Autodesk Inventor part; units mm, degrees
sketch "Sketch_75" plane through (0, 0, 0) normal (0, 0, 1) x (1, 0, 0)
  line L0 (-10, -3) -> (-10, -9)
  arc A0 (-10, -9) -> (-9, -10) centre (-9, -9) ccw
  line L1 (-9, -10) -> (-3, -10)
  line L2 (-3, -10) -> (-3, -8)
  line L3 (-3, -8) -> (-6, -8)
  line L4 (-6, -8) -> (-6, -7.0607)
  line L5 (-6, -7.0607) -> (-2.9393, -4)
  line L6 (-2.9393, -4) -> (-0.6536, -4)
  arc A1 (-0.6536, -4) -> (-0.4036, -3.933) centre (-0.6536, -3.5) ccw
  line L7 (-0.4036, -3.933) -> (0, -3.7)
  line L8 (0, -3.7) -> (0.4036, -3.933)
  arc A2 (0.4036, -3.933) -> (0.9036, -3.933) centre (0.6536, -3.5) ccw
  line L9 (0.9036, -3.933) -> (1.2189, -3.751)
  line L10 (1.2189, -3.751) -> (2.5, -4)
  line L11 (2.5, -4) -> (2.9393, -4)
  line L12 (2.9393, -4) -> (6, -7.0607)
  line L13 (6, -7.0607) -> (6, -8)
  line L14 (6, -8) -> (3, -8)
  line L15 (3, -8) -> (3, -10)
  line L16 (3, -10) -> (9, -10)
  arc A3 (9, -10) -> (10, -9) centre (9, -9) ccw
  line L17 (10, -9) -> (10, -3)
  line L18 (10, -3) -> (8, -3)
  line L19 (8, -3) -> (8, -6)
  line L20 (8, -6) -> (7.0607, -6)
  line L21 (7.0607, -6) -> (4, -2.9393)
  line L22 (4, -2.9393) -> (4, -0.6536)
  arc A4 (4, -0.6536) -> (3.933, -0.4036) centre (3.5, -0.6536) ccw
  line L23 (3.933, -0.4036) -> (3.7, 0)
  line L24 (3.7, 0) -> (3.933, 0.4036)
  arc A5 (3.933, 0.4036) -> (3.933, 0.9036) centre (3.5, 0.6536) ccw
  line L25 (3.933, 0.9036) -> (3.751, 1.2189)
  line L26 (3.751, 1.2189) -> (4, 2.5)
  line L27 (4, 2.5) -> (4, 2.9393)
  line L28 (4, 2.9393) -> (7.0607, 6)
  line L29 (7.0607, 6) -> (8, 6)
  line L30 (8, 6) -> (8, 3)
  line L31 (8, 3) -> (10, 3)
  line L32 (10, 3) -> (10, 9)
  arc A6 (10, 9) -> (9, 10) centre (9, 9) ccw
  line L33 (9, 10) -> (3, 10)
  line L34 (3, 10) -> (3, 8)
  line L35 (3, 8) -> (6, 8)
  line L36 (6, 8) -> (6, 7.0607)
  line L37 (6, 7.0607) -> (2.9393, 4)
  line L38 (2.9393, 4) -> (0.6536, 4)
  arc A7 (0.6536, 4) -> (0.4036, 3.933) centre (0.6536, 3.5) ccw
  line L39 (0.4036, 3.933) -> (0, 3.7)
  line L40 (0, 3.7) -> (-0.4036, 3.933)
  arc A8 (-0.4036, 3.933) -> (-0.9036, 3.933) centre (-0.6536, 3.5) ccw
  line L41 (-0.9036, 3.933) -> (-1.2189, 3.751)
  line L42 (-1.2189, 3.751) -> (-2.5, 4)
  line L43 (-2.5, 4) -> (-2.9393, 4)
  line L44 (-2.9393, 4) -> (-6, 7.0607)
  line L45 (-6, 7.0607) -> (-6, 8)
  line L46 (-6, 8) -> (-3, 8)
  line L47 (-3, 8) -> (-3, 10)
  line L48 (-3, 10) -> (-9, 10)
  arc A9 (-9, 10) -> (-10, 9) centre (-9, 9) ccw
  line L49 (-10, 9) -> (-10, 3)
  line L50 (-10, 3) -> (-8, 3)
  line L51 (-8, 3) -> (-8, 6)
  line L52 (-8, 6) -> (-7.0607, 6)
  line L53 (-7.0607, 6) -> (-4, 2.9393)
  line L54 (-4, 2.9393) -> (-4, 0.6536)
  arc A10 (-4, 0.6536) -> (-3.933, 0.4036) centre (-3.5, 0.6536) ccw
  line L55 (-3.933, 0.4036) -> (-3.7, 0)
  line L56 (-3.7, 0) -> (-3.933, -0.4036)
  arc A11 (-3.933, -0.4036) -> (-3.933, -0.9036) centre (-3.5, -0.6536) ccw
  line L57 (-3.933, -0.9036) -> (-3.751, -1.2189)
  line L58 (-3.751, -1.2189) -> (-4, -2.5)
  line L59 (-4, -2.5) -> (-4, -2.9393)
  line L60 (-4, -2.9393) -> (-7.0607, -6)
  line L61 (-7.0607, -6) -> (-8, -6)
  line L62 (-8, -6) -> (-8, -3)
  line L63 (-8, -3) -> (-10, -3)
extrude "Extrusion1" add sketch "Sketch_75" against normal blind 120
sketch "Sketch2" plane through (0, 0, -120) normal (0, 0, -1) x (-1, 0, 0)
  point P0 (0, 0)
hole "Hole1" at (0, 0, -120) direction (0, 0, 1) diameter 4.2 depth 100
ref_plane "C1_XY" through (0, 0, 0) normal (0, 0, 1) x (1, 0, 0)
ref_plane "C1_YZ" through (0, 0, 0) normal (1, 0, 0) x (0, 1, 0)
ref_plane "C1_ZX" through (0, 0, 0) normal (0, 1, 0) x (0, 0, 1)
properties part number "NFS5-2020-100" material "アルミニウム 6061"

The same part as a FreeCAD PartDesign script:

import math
import FreeCAD as App
import Part
import Sketcher
Q = App.Units.Quantity

doc = App.newDocument("Part")
body = doc.addObject("PartDesign::Body", "Body")

# Sketch on XY plane
sketch1 = body.newObject("Sketcher::SketchObject", "Sketch")
sketch1.AttachmentSupport = (doc.getObject("XY_Plane"), [""])
sketch1.MapMode = "FlatFace"
sketch1.addGeometry([
    Part.LineSegment(App.Vector(-8, -3, 0), App.Vector(-10, -3, 0)),  # 0
    Part.LineSegment(App.Vector(-10, -3, 0), App.Vector(-10, -9, 0)),  # 1
    Part.ArcOfCircle(Part.Circle(App.Vector(-9, -9, 0), App.Vector(0, 0, 1), 1), math.radians(180), math.radians(270)),  # 2
    Part.LineSegment(App.Vector(-9, -10, 0), App.Vector(-3, -10, 0)),  # 3
    Part.LineSegment(App.Vector(-3, -10, 0), App.Vector(-3, -8, 0)),  # 4
    Part.LineSegment(App.Vector(-3, -8, 0), App.Vector(-6, -8, 0)),  # 5
    Part.LineSegment(App.Vector(-6, -8, 0), App.Vector(-6, -7.06, 0)),  # 6
    Part.LineSegment(App.Vector(-6, -7.06, 0), App.Vector(-2.94, -4, 0)),  # 7
    Part.LineSegment(App.Vector(-2.94, -4, 0), App.Vector(-0.65, -4, 0)),  # 8
    Part.ArcOfCircle(Part.Circle(App.Vector(-0.65, -3.5, 0), App.Vector(0, 0, 1), 0.5), math.radians(-90), math.radians(-60)),  # 9
    Part.LineSegment(App.Vector(-0.4, -3.93, 0), App.Vector(0, -3.7, 0)),  # 10
    Part.LineSegment(App.Vector(0, -3.7, 0), App.Vector(0.4, -3.93, 0)),  # 11
    Part.ArcOfCircle(Part.Circle(App.Vector(0.65, -3.5, 0), App.Vector(0, 0, 1), 0.5), math.radians(-120), math.radians(-60)),  # 12
    Part.LineSegment(App.Vector(0.9, -3.93, 0), App.Vector(1.22, -3.75, 0)),  # 13
    Part.LineSegment(App.Vector(1.22, -3.75, 0), App.Vector(2.5, -4, 0)),  # 14
    Part.LineSegment(App.Vector(2.5, -4, 0), App.Vector(2.94, -4, 0)),  # 15
    Part.LineSegment(App.Vector(2.94, -4, 0), App.Vector(6, -7.06, 0)),  # 16
    Part.LineSegment(App.Vector(6, -7.06, 0), App.Vector(6, -8, 0)),  # 17
    Part.LineSegment(App.Vector(6, -8, 0), App.Vector(3, -8, 0)),  # 18
    Part.LineSegment(App.Vector(3, -8, 0), App.Vector(3, -10, 0)),  # 19
    Part.LineSegment(App.Vector(3, -10, 0), App.Vector(9, -10, 0)),  # 20
    Part.ArcOfCircle(Part.Circle(App.Vector(9, -9, 0), App.Vector(0, 0, 1), 1), math.radians(-90), math.radians(0)),  # 21
    Part.LineSegment(App.Vector(10, -9, 0), App.Vector(10, -3, 0)),  # 22
    Part.LineSegment(App.Vector(10, -3, 0), App.Vector(8, -3, 0)),  # 23
    Part.LineSegment(App.Vector(8, -3, 0), App.Vector(8, -6, 0)),  # 24
    Part.LineSegment(App.Vector(8, -6, 0), App.Vector(7.06, -6, 0)),  # 25
    Part.LineSegment(App.Vector(7.06, -6, 0), App.Vector(4, -2.94, 0)),  # 26
    Part.LineSegment(App.Vector(4, -2.94, 0), App.Vector(4, -0.65, 0)),  # 27
    Part.ArcOfCircle(Part.Circle(App.Vector(3.5, -0.65, 0), App.Vector(0, 0, 1), 0.5), math.radians(0), math.radians(30)),  # 28
    Part.LineSegment(App.Vector(3.93, -0.4, 0), App.Vector(3.7, 0, 0)),  # 29
    Part.LineSegment(App.Vector(3.7, 0, 0), App.Vector(3.93, 0.4, 0)),  # 30
    Part.ArcOfCircle(Part.Circle(App.Vector(3.5, 0.65, 0), App.Vector(0, 0, 1), 0.5), math.radians(-30), math.radians(30)),  # 31
    Part.LineSegment(App.Vector(3.93, 0.9, 0), App.Vector(3.75, 1.22, 0)),  # 32
    Part.LineSegment(App.Vector(3.75, 1.22, 0), App.Vector(4, 2.5, 0)),  # 33
    Part.LineSegment(App.Vector(4, 2.5, 0), App.Vector(4, 2.94, 0)),  # 34
    Part.LineSegment(App.Vector(4, 2.94, 0), App.Vector(7.06, 6, 0)),  # 35
    Part.LineSegment(App.Vector(7.06, 6, 0), App.Vector(8, 6, 0)),  # 36
    Part.LineSegment(App.Vector(8, 6, 0), App.Vector(8, 3, 0)),  # 37
    Part.LineSegment(App.Vector(8, 3, 0), App.Vector(10, 3, 0)),  # 38
    Part.LineSegment(App.Vector(10, 3, 0), App.Vector(10, 9, 0)),  # 39
    Part.ArcOfCircle(Part.Circle(App.Vector(9, 9, 0), App.Vector(0, 0, 1), 1), math.radians(0), math.radians(90)),  # 40
    Part.LineSegment(App.Vector(9, 10, 0), App.Vector(3, 10, 0)),  # 41
    Part.LineSegment(App.Vector(3, 10, 0), App.Vector(3, 8, 0)),  # 42
    Part.LineSegment(App.Vector(3, 8, 0), App.Vector(6, 8, 0)),  # 43
    Part.LineSegment(App.Vector(6, 8, 0), App.Vector(6, 7.06, 0)),  # 44
    Part.LineSegment(App.Vector(6, 7.06, 0), App.Vector(2.94, 4, 0)),  # 45
    Part.LineSegment(App.Vector(2.94, 4, 0), App.Vector(0.65, 4, 0)),  # 46
    Part.ArcOfCircle(Part.Circle(App.Vector(0.65, 3.5, 0), App.Vector(0, 0, 1), 0.5), math.radians(90), math.radians(120)),  # 47
    Part.LineSegment(App.Vector(0.4, 3.93, 0), App.Vector(0, 3.7, 0)),  # 48
    Part.LineSegment(App.Vector(0, 3.7, 0), App.Vector(-0.4, 3.93, 0)),  # 49
    Part.ArcOfCircle(Part.Circle(App.Vector(-0.65, 3.5, 0), App.Vector(0, 0, 1), 0.5), math.radians(60), math.radians(120)),  # 50
    Part.LineSegment(App.Vector(-0.9, 3.93, 0), App.Vector(-1.22, 3.75, 0)),  # 51
    Part.LineSegment(App.Vector(-1.22, 3.75, 0), App.Vector(-2.5, 4, 0)),  # 52
    Part.LineSegment(App.Vector(-2.5, 4, 0), App.Vector(-2.94, 4, 0)),  # 53
    Part.LineSegment(App.Vector(-2.94, 4, 0), App.Vector(-6, 7.06, 0)),  # 54
    Part.LineSegment(App.Vector(-6, 7.06, 0), App.Vector(-6, 8, 0)),  # 55
    Part.LineSegment(App.Vector(-6, 8, 0), App.Vector(-3, 8, 0)),  # 56
    Part.LineSegment(App.Vector(-3, 8, 0), App.Vector(-3, 10, 0)),  # 57
    Part.LineSegment(App.Vector(-3, 10, 0), App.Vector(-9, 10, 0)),  # 58
    Part.ArcOfCircle(Part.Circle(App.Vector(-9, 9, 0), App.Vector(0, 0, 1), 1), math.radians(90), math.radians(180)),  # 59
    Part.LineSegment(App.Vector(-10, 9, 0), App.Vector(-10, 3, 0)),  # 60
    Part.LineSegment(App.Vector(-10, 3, 0), App.Vector(-8, 3, 0)),  # 61
    Part.LineSegment(App.Vector(-8, 3, 0), App.Vector(-8, 6, 0)),  # 62
    Part.LineSegment(App.Vector(-8, 6, 0), App.Vector(-7.06, 6, 0)),  # 63
    Part.LineSegment(App.Vector(-7.06, 6, 0), App.Vector(-4, 2.94, 0)),  # 64
    Part.LineSegment(App.Vector(-4, 2.94, 0), App.Vector(-4, 0.65, 0)),  # 65
    Part.ArcOfCircle(Part.Circle(App.Vector(-3.5, 0.65, 0), App.Vector(0, 0, 1), 0.5), math.radians(180), math.radians(210)),  # 66
    Part.LineSegment(App.Vector(-3.93, 0.4, 0), App.Vector(-3.7, 0, 0)),  # 67
    Part.LineSegment(App.Vector(-3.7, 0, 0), App.Vector(-3.93, -0.4, 0)),  # 68
    Part.ArcOfCircle(Part.Circle(App.Vector(-3.5, -0.65, 0), App.Vector(0, 0, 1), 0.5), math.radians(150), math.radians(210)),  # 69
    Part.LineSegment(App.Vector(-3.93, -0.9, 0), App.Vector(-3.75, -1.22, 0)),  # 70
    Part.LineSegment(App.Vector(-3.75, -1.22, 0), App.Vector(-4, -2.5, 0)),  # 71
    Part.LineSegment(App.Vector(-4, -2.5, 0), App.Vector(-4, -2.94, 0)),  # 72
    Part.LineSegment(App.Vector(-4, -2.94, 0), App.Vector(-7.06, -6, 0)),  # 73
    Part.LineSegment(App.Vector(-7.06, -6, 0), App.Vector(-8, -6, 0)),  # 74
    Part.LineSegment(App.Vector(-8, -6, 0), App.Vector(-8, -3, 0)),  # 75
], False)
sketch1.addConstraint([
    Sketcher.Constraint("Coincident", 0, 2, 1, 1),
    Sketcher.Constraint("Tangent", 1, 2, 2, 1),
    Sketcher.Constraint("Tangent", 2, 2, 3, 1),
    Sketcher.Constraint("Coincident", 3, 2, 4, 1),
    Sketcher.Constraint("Coincident", 4, 2, 5, 1),
    Sketcher.Constraint("Coincident", 5, 2, 6, 1),
    Sketcher.Constraint("Coincident", 6, 2, 7, 1),
    Sketcher.Constraint("Coincident", 7, 2, 8, 1),
    Sketcher.Constraint("Tangent", 8, 2, 9, 1),
    Sketcher.Constraint("Tangent", 9, 2, 10, 1),
    Sketcher.Constraint("Coincident", 10, 2, 11, 1),
    Sketcher.Constraint("Tangent", 11, 2, 12, 1),
    Sketcher.Constraint("Tangent", 12, 2, 13, 1),
    Sketcher.Constraint("Coincident", 13, 2, 14, 1),
    Sketcher.Constraint("Coincident", 14, 2, 15, 1),
    Sketcher.Constraint("Coincident", 15, 2, 16, 1),
    Sketcher.Constraint("Coincident", 16, 2, 17, 1),
    Sketcher.Constraint("Coincident", 17, 2, 18, 1),
    Sketcher.Constraint("Coincident", 18, 2, 19, 1),
    Sketcher.Constraint("Coincident", 19, 2, 20, 1),
    Sketcher.Constraint("Tangent", 20, 2, 21, 1),
    Sketcher.Constraint("Tangent", 21, 2, 22, 1),
    Sketcher.Constraint("Coincident", 22, 2, 23, 1),
    Sketcher.Constraint("Coincident", 23, 2, 24, 1),
    Sketcher.Constraint("Coincident", 24, 2, 25, 1),
    Sketcher.Constraint("Coincident", 25, 2, 26, 1),
    Sketcher.Constraint("Coincident", 26, 2, 27, 1),
    Sketcher.Constraint("Tangent", 27, 2, 28, 1),
    Sketcher.Constraint("Tangent", 28, 2, 29, 1),
    Sketcher.Constraint("Coincident", 29, 2, 30, 1),
    Sketcher.Constraint("Tangent", 30, 2, 31, 1),
    Sketcher.Constraint("Tangent", 31, 2, 32, 1),
    Sketcher.Constraint("Coincident", 32, 2, 33, 1),
    Sketcher.Constraint("Coincident", 33, 2, 34, 1),
    Sketcher.Constraint("Coincident", 34, 2, 35, 1),
    Sketcher.Constraint("Coincident", 35, 2, 36, 1),
    Sketcher.Constraint("Coincident", 36, 2, 37, 1),
    Sketcher.Constraint("Coincident", 37, 2, 38, 1),
    Sketcher.Constraint("Coincident", 38, 2, 39, 1),
    Sketcher.Constraint("Tangent", 39, 2, 40, 1),
    Sketcher.Constraint("Tangent", 40, 2, 41, 1),
    Sketcher.Constraint("Coincident", 41, 2, 42, 1),
    Sketcher.Constraint("Coincident", 42, 2, 43, 1),
    Sketcher.Constraint("Coincident", 43, 2, 44, 1),
    Sketcher.Constraint("Coincident", 44, 2, 45, 1),
    Sketcher.Constraint("Coincident", 45, 2, 46, 1),
    Sketcher.Constraint("Tangent", 46, 2, 47, 1),
    Sketcher.Constraint("Tangent", 47, 2, 48, 1),
    Sketcher.Constraint("Coincident", 48, 2, 49, 1),
    Sketcher.Constraint("Tangent", 49, 2, 50, 1),
    Sketcher.Constraint("Tangent", 50, 2, 51, 1),
    Sketcher.Constraint("Coincident", 51, 2, 52, 1),
    Sketcher.Constraint("Coincident", 52, 2, 53, 1),
    Sketcher.Constraint("Coincident", 53, 2, 54, 1),
    Sketcher.Constraint("Coincident", 54, 2, 55, 1),
    Sketcher.Constraint("Coincident", 55, 2, 56, 1),
    Sketcher.Constraint("Coincident", 56, 2, 57, 1),
    Sketcher.Constraint("Coincident", 57, 2, 58, 1),
    Sketcher.Constraint("Tangent", 58, 2, 59, 1),
    Sketcher.Constraint("Tangent", 59, 2, 60, 1),
    Sketcher.Constraint("Coincident", 60, 2, 61, 1),
    Sketcher.Constraint("Coincident", 61, 2, 62, 1),
    Sketcher.Constraint("Coincident", 62, 2, 63, 1),
    Sketcher.Constraint("Coincident", 63, 2, 64, 1),
    Sketcher.Constraint("Coincident", 64, 2, 65, 1),
    Sketcher.Constraint("Tangent", 65, 2, 66, 1),
    Sketcher.Constraint("Tangent", 66, 2, 67, 1),
    Sketcher.Constraint("Coincident", 67, 2, 68, 1),
    Sketcher.Constraint("Tangent", 68, 2, 69, 1),
    Sketcher.Constraint("Tangent", 69, 2, 70, 1),
    Sketcher.Constraint("Coincident", 70, 2, 71, 1),
    Sketcher.Constraint("Coincident", 71, 2, 72, 1),
    Sketcher.Constraint("Coincident", 72, 2, 73, 1),
    Sketcher.Constraint("Coincident", 73, 2, 74, 1),
    Sketcher.Constraint("Coincident", 74, 2, 75, 1),
    Sketcher.Constraint("Coincident", 75, 2, 0, 1),
    Sketcher.Constraint("Horizontal", 0),
    Sketcher.Constraint("Vertical", 1),
    Sketcher.Constraint("Horizontal", 3),
    Sketcher.Constraint("Vertical", 4),
    Sketcher.Constraint("Horizontal", 5),
    Sketcher.Constraint("Vertical", 6),
    Sketcher.Constraint("Horizontal", 8),
    Sketcher.Constraint("Horizontal", 15),
    Sketcher.Constraint("Vertical", 17),
    Sketcher.Constraint("Horizontal", 18),
    Sketcher.Constraint("Vertical", 19),
    Sketcher.Constraint("Horizontal", 20),
    Sketcher.Constraint("Vertical", 22),
    Sketcher.Constraint("Horizontal", 23),
    Sketcher.Constraint("Vertical", 24),
    Sketcher.Constraint("Horizontal", 25),
    Sketcher.Constraint("Vertical", 27),
    Sketcher.Constraint("Vertical", 34),
    Sketcher.Constraint("Horizontal", 36),
    Sketcher.Constraint("Vertical", 37),
    Sketcher.Constraint("Horizontal", 38),
    Sketcher.Constraint("Vertical", 39),
    Sketcher.Constraint("Horizontal", 41),
    Sketcher.Constraint("Vertical", 42),
    Sketcher.Constraint("Horizontal", 43),
    Sketcher.Constraint("Vertical", 44),
    Sketcher.Constraint("Horizontal", 46),
    Sketcher.Constraint("Horizontal", 53),
    Sketcher.Constraint("Vertical", 55),
    Sketcher.Constraint("Horizontal", 56),
    Sketcher.Constraint("Vertical", 57),
    Sketcher.Constraint("Horizontal", 58),
    Sketcher.Constraint("Vertical", 60),
    Sketcher.Constraint("Horizontal", 61),
    Sketcher.Constraint("Vertical", 62),
    Sketcher.Constraint("Horizontal", 63),
    Sketcher.Constraint("Vertical", 65),
    Sketcher.Constraint("Vertical", 72),
    Sketcher.Constraint("Horizontal", 74),
    Sketcher.Constraint("Vertical", 75),
    Sketcher.Constraint("Equal", 9, 12),
    Sketcher.Constraint("Equal", 2, 21),
    Sketcher.Constraint("Equal", 12, 28),
    Sketcher.Constraint("Equal", 28, 31),
    Sketcher.Constraint("Equal", 21, 40),
    Sketcher.Constraint("Equal", 31, 47),
    Sketcher.Constraint("Equal", 47, 50),
    Sketcher.Constraint("Equal", 40, 59),
    Sketcher.Constraint("Equal", 50, 66),
    Sketcher.Constraint("Equal", 66, 69),
    Sketcher.Constraint("Symmetric", 2, 3, 40, 3, -1, 1),
    Sketcher.Constraint("Symmetric", 9, 3, 47, 3, -1, 1),
    Sketcher.Constraint("Symmetric", 12, 3, 50, 3, -1, 1),
    Sketcher.Constraint("Symmetric", 21, 3, 59, 3, -1, 1),
    Sketcher.Constraint("Symmetric", 28, 3, 66, 3, -1, 1),
    Sketcher.Constraint("Symmetric", 31, 3, 69, 3, -1, 1),
    Sketcher.Constraint("Symmetric", 4, 2, 42, 2, -1, 1),
    Sketcher.Constraint("Symmetric", 6, 2, 44, 2, -1, 1),
    Sketcher.Constraint("Symmetric", 10, 2, 48, 2, -1, 1),
    Sketcher.Constraint("Symmetric", 13, 2, 51, 2, -1, 1),
    Sketcher.Constraint("Symmetric", 14, 2, 52, 2, -1, 1),
    Sketcher.Constraint("Symmetric", 16, 2, 54, 2, -1, 1),
    Sketcher.Constraint("Symmetric", 18, 2, 56, 2, -1, 1),
    Sketcher.Constraint("Symmetric", 23, 2, 61, 2, -1, 1),
    Sketcher.Constraint("Symmetric", 25, 2, 63, 2, -1, 1),
    Sketcher.Constraint("Symmetric", 29, 2, 67, 2, -1, 1),
    Sketcher.Constraint("Symmetric", 32, 2, 70, 2, -1, 1),
    Sketcher.Constraint("Symmetric", 33, 2, 71, 2, -1, 1),
    Sketcher.Constraint("Symmetric", 35, 2, 73, 2, -1, 1),
    Sketcher.Constraint("Symmetric", 37, 2, 75, 2, -1, 1),
    Sketcher.Constraint("Symmetric", 9, 3, 12, 3, -2),
    Sketcher.Constraint("Symmetric", 2, 3, 21, 3, -2),
    Sketcher.Constraint("Symmetric", 31, 3, 66, 3, -2),
    Sketcher.Constraint("Symmetric", 7, 2, 15, 2, -2),
    Sketcher.Constraint("Symmetric", 6, 2, 16, 2, -2),
    Sketcher.Constraint("Symmetric", 4, 2, 18, 2, -2),
    Sketcher.Constraint("Symmetric", 37, 2, 61, 2, -2),
    Sketcher.Constraint("Symmetric", 35, 2, 63, 2, -2),
    Sketcher.Constraint("Symmetric", 34, 2, 64, 2, -2),
    Sketcher.Constraint("PointOnObject", 10, 2, -2),
    Sketcher.Constraint("PointOnObject", 29, 2, -1),
    Sketcher.Constraint("Parallel", 10, 13),
    Sketcher.Constraint("Perpendicular", 7, 16),
    Sketcher.Constraint("Parallel", 16, 26),
    Sketcher.Constraint("Perpendicular", 13, 29),
    Sketcher.Constraint("Parallel", 29, 32),
    Sketcher.Constraint("Perpendicular", 14, 33),
    Sketcher.Constraint("Perpendicular", 26, 35),
    Sketcher.Constraint("Parallel", 35, 45),
    Sketcher.Constraint("Perpendicular", 45, 54),
    Sketcher.Constraint("Perpendicular", 64, 73),
    Sketcher.Constraint("Equal", 58, 1),
    Sketcher.Constraint("Equal", 61, 4),
    Sketcher.Constraint("Equal", 74, 6),
    Sketcher.Constraint("Equal", 56, 24),
    Sketcher.Constraint("Equal", 46, 27),
    Sketcher.Constraint("Equal", 53, 34),
    Sketcher.Constraint("Equal", 16, 26),
    Sketcher.Constraint("Equal", 11, 29),
    Sketcher.Constraint("Radius", 2, 1.0),
    Sketcher.Constraint("Radius", 9, 0.5),
    Sketcher.Constraint("DistanceX", 0, 2, 0, 1, 2.0),
    Sketcher.Constraint("DistanceX", 3, 1, 3, 2, 6.0),
    Sketcher.Constraint("DistanceX", 5, 2, 5, 1, 3.0),
    Sketcher.Constraint("Angle", 14, Q("-10.999 deg")),
    Sketcher.Constraint("DistanceX", 2, 3, -1, 1, 9.0),
    Sketcher.Constraint("DistanceY", 7, 2, -1, 1, 4.0),
    Sketcher.Constraint("DistanceY", 10, 2, -1, 1, 3.7),
    Sketcher.Constraint("DistanceX", -1, 1, 14, 2, 2.5),
    Sketcher.Constraint("Distance", 10, 0.466),
    Sketcher.Constraint("DistanceX", 8, 1, 8, 2, 2.2857),
])
pad1 = body.newObject("PartDesign::Pad", "Pad")
pad1.Profile = sketch1
pad1.Length = 120
pad1.Reversed = True

# Sketch on XY plane
sketch2 = body.newObject("Sketcher::SketchObject", "Sketch001")
sketch2.AttachmentSupport = (doc.getObject("XY_Plane"), [""])
sketch2.MapMode = "FlatFace"
sketch2.AttachmentOffset = App.Placement(App.Vector(0, 0, -120), App.Rotation())
sketch2.addGeometry(Part.Circle(App.Vector(0, 0, 0), App.Vector(0, 0, 1), 2.1), False)
sketch2.addConstraint([
    Sketcher.Constraint("Coincident", 0, 3, -1, 1),
    Sketcher.Constraint("Diameter", 0, 4.2),
])
doc.recompute()
hole = body.newObject("PartDesign::Hole", "Hole")
hole.Profile = sketch2
hole.ThreadType = "None"
hole.Diameter = 4.2
hole.DepthType = "Dimension"
hole.Depth = 100
hole.DrillPoint = "Flat"
hole.Reversed = True

doc.recompute()
